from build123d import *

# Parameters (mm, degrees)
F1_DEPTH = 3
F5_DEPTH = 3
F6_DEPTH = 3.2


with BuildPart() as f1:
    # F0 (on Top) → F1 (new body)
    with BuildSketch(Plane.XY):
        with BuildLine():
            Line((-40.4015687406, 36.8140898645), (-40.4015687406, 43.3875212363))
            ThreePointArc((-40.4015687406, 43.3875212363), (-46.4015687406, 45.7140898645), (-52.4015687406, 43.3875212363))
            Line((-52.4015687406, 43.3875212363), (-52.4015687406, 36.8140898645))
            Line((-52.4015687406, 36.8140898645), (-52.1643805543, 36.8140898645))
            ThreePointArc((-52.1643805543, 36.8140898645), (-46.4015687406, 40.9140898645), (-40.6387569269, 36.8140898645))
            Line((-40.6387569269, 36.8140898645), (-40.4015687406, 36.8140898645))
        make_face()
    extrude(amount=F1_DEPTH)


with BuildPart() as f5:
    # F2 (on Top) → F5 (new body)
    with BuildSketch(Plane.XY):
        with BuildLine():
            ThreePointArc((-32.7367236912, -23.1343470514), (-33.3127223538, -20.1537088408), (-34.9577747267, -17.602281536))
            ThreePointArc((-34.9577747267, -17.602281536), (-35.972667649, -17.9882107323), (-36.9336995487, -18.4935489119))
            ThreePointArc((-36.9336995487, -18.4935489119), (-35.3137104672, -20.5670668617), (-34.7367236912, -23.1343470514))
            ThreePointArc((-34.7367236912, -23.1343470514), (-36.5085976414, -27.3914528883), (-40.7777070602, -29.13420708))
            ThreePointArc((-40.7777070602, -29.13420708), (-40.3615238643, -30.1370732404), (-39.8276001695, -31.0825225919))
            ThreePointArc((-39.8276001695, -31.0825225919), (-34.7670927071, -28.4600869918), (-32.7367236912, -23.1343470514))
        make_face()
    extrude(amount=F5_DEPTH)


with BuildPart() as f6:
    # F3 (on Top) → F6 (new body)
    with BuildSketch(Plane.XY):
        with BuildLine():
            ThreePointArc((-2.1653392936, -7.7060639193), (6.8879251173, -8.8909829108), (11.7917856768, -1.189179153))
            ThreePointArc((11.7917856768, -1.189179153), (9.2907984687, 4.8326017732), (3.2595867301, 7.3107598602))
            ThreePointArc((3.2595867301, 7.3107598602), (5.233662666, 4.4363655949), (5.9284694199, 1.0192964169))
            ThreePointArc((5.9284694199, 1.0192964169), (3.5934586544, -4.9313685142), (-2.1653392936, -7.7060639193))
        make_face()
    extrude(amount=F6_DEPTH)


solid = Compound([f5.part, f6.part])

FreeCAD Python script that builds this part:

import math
import FreeCAD as App
import Part
import Sketcher
from FreeCAD import Vector
Q = App.Units.Quantity

doc = App.newDocument("Part")
body = doc.addObject("PartDesign::Body", "Body")

# Sketch on XY plane
sketch1 = doc.addObject("Sketcher::SketchObject", "Sketch")
body.addObject(sketch1)
sketch1.AttachmentSupport = (doc.XY_Plane, [""])
sketch1.MapMode = "FlatFace"
sketch1.addGeometry([
    Part.LineSegment(Vector(-40.401569, 36.81409, 0), Vector(-40.401569, 43.387521, 0)),  # 0
    Part.ArcOfCircle(Part.Circle(Vector(-46.401569, 36.81409, 0), Vector(0, 0, 1), 8.9), math.radians(47.611256), math.radians(132.388744)),  # 1
    Part.LineSegment(Vector(-52.401569, 43.387521, 0), Vector(-52.401569, 36.81409, 0)),  # 2
    Part.LineSegment(Vector(-52.401569, 36.81409, 0), Vector(-52.164381, 36.81409, 0)),  # 3
    Part.ArcOfCircle(Part.Circle(Vector(-46.401569, 34.81409, 0), Vector(0, 0, 1), 6.1), math.radians(19.139474), math.radians(160.860526)),  # 4
    Part.LineSegment(Vector(-40.638757, 36.81409, 0), Vector(-40.401569, 36.81409, 0)),  # 5
], False)
sketch1.addConstraint([
    Sketcher.Constraint("Coincident", 0, 2, 1, 1),
    Sketcher.Constraint("Coincident", 1, 2, 2, 1),
    Sketcher.Constraint("Coincident", 2, 2, 3, 1),
    Sketcher.Constraint("Coincident", 3, 2, 4, 2),
    Sketcher.Constraint("Coincident", 4, 1, 5, 1),
    Sketcher.Constraint("Coincident", 5, 2, 0, 1),
    Sketcher.Constraint("Vertical", 0),
    Sketcher.Constraint("Vertical", 2),
    Sketcher.Constraint("Horizontal", 3),
    Sketcher.Constraint("Horizontal", 5),
    Sketcher.Constraint("Horizontal", 0, 2, 1, 2),
    Sketcher.Constraint("Horizontal", 1, 3, 2, 2),
    Sketcher.Constraint("Horizontal", 3, 2, 4, 1),
    Sketcher.Constraint("Vertical", 1, 3, 4, 3),
    Sketcher.Constraint("Radius", 1, Q("8.9 mm")),
    Sketcher.Constraint("Radius", 4, Q("6.1 mm")),
    Sketcher.Constraint("DistanceY", 4, 3, 1, 3, Q("2 mm")),
    Sketcher.Constraint("DistanceX", 1, 3, 0, 2, Q("6 mm")),
    Sketcher.Constraint("DistanceX", 1, 3, -1, 1, Q("46.401569 mm")),
    Sketcher.Constraint("DistanceY", -1, 1, 1, 3, Q("36.81409 mm")),
])
pad1 = doc.addObject("PartDesign::Pad", "Pad")
body.addObject(pad1)
pad1.Profile = sketch1
pad1.Length = 3
body2 = doc.addObject("PartDesign::Body", "Body001")

# Sketch on XY plane
sketch2 = doc.addObject("Sketcher::SketchObject", "Sketch001")
body2.addObject(sketch2)
sketch2.AttachmentSupport = (doc.getObject("XY_Plane001"), [""])
sketch2.MapMode = "FlatFace"
sketch2.addGeometry([
    Part.ArcOfCircle(Part.Circle(Vector(-40.736724, -23.134347, 0), Vector(0, 0, 1), 8), math.radians(0), math.radians(43.749614)),  # 0
    Part.ArcOfCircle(Part.Circle(Vector(-32.272132, -26.192236, 0), Vector(0, 0, 1), 9), math.radians(107.361814), math.radians(121.194973)),  # 1
    Part.ArcOfCircle(Part.Circle(Vector(-40.736724, -23.134347, 0), Vector(0, 0, 1), 6), math.radians(0), math.radians(50.666193)),  # 2
    Part.ArcOfCircle(Part.Circle(Vector(-40.736724, -23.134347, 0), Vector(0, 0, 1), 6), math.radians(-90.391365), math.radians(0)),  # 3
    Part.ArcOfCircle(Part.Circle(Vector(-32.272132, -26.192236, 0), Vector(0, 0, 1), 9), math.radians(-160.920145), math.radians(-147.086986)),  # 4
    Part.ArcOfCircle(Part.Circle(Vector(-40.736724, -23.134347, 0), Vector(0, 0, 1), 8), math.radians(-83.474786), math.radians(0)),  # 5
], False)
sketch2.addConstraint([
    Sketcher.Constraint("Coincident", 0, 2, 1, 1),
    Sketcher.Constraint("Coincident", 1, 2, 2, 2),
    Sketcher.Constraint("Tangent", 2, 1, 3, 2),
    Sketcher.Constraint("Coincident", 3, 1, 4, 1),
    Sketcher.Constraint("Coincident", 4, 2, 5, 1),
    Sketcher.Constraint("Tangent", 5, 2, 0, 1),
    Sketcher.Constraint("Coincident", 2, 3, 0, 3),
    Sketcher.Constraint("Coincident", 4, 3, 1, 3),
    Sketcher.Constraint("Equal", 2, 3),
    Sketcher.Constraint("Equal", 1, 4),
    Sketcher.Constraint("Equal", 0, 5),
    Sketcher.Constraint("Horizontal", 5, 3, 2, 1),
    Sketcher.Constraint("Horizontal", 2, 1, 5, 2),
    Sketcher.Constraint("Radius", 0, Q("8 mm")),
    Sketcher.Constraint("Radius", 1, Q("9 mm")),
    Sketcher.Constraint("Radius", 2, Q("6 mm")),
    Sketcher.Constraint("DistanceX", 1, 2, -1, 1, Q("36.9337 mm")),
    Sketcher.Constraint("DistanceX", 4, 2, -1, 1, Q("39.8276 mm")),
    Sketcher.Constraint("DistanceY", 0, 3, 1, 2, Q("4.640798 mm")),
    Sketcher.Constraint("DistanceY", 0, 2, -1, 1, Q("17.602282 mm")),
])
pad2 = doc.addObject("PartDesign::Pad", "Pad001")
body2.addObject(pad2)
pad2.Profile = sketch2
pad2.Length = 3
body3 = doc.addObject("PartDesign::Body", "Body002")

# Sketch on XY plane
sketch3 = doc.addObject("Sketcher::SketchObject", "Sketch002")
body3.addObject(sketch3)
sketch3.AttachmentSupport = (doc.getObject("XY_Plane002"), [""])
sketch3.MapMode = "FlatFace"
sketch3.addGeometry([
    Part.ArcOfCircle(Part.Circle(Vector(3.291786, -1.189179, 0), Vector(0, 0, 1), 8.5), math.radians(-129.942215), math.radians(90.217043)),
    Part.ArcOfCircle(Part.Circle(Vector(-2.821531, 1.019296, 0), Vector(0, 0, 1), 8.75), math.radians(0), math.radians(45.973991)),
    Part.ArcOfCircle(Part.Circle(Vector(-2.821531, 1.019296, 0), Vector(0, 0, 1), 8.75), math.radians(-85.699163), math.radians(0)),
], False)
sketch3.addConstraint([
    Sketcher.Constraint("Coincident", 0, 2, 1, 2),
    Sketcher.Constraint("Tangent", 1, 1, 2, 2),
    Sketcher.Constraint("Coincident", 2, 1, 0, 1),
    Sketcher.Constraint("Equal", 1, 2),
    Sketcher.Constraint("Horizontal", 2, 3, 1, 1),
    Sketcher.Constraint("Radius", 0, Q("8.5 mm")),
    Sketcher.Constraint("Radius", 1, Q("8.75 mm")),
    Sketcher.Constraint("DistanceX", 0, 2, 0, 3, Q("0.032199 mm")),
    Sketcher.Constraint("DistanceY", 0, 3, -1, 1, Q("1.189179 mm")),
    Sketcher.Constraint("DistanceX", 1, 3, -1, 1, Q("2.821531 mm")),
    Sketcher.Constraint("DistanceX", 2, 1, -1, 1, Q("2.165339 mm")),
])
pad3 = doc.addObject("PartDesign::Pad", "Pad002")
body3.addObject(pad3)
pad3.Profile = sketch3
pad3.Length = 3.2
body.Visibility = False

doc.recompute()
